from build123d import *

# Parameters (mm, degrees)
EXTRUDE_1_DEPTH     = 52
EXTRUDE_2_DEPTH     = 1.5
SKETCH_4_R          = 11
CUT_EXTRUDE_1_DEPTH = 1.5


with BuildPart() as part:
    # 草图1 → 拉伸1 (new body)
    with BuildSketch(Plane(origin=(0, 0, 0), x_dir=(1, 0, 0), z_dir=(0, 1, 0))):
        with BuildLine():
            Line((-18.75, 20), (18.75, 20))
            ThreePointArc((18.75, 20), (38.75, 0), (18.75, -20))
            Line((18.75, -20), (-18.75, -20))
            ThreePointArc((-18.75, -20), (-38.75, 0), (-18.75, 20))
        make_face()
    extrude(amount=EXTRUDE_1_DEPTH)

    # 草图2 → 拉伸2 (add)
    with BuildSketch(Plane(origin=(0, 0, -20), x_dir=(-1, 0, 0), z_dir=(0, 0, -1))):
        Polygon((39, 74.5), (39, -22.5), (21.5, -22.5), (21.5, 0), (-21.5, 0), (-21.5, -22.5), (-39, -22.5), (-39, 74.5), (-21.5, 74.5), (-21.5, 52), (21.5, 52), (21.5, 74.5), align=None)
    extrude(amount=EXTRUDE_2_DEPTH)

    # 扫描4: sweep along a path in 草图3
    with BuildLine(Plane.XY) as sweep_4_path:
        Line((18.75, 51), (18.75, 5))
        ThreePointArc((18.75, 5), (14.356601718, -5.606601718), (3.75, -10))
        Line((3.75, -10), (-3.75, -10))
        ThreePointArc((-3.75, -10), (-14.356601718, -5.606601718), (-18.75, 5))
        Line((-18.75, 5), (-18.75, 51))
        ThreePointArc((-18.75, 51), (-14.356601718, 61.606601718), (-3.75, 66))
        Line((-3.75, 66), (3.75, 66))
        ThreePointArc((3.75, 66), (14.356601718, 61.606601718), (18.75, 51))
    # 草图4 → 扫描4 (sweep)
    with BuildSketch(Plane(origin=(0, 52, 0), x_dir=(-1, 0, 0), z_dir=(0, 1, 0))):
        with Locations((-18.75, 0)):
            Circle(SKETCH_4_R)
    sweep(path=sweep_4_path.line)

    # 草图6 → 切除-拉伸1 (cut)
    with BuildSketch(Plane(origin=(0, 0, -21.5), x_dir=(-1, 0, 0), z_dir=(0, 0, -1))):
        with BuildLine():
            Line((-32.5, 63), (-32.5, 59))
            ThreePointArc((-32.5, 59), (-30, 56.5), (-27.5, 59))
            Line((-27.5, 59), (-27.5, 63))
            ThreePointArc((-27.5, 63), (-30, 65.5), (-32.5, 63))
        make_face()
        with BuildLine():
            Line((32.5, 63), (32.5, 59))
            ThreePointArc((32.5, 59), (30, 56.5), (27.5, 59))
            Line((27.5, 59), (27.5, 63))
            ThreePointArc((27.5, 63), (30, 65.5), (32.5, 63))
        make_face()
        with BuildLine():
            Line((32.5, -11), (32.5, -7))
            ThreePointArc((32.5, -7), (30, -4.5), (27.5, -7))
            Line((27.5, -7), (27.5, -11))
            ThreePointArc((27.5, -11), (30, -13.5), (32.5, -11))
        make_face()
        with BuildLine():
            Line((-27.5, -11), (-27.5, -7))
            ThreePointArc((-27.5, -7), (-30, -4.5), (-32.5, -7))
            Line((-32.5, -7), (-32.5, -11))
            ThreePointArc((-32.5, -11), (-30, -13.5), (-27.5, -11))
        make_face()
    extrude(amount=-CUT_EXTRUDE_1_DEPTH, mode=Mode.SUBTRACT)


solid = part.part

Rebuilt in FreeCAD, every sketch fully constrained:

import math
import FreeCAD as App
import Part
import Sketcher
Q = App.Units.Quantity

doc = App.newDocument("Part")
body = doc.addObject("PartDesign::Body", "Body")

# Sketch on XZ plane
sketch1 = body.newObject("Sketcher::SketchObject", "Sketch")
sketch1.AttachmentSupport = (doc.getObject("XZ_Plane"), [""])
sketch1.MapMode = "FlatFace"
sketch1.addGeometry(Part.LineSegment(App.Vector(19, -20, 0), App.Vector(-19, -20, 0)), False)
sketch1.addGeometry(Part.ArcOfCircle(Part.Circle(App.Vector(-19, 0, 0), App.Vector(0, 0, 1), 20), math.radians(90), math.radians(270)), False)
sketch1.addGeometry(Part.LineSegment(App.Vector(-19, 20, 0), App.Vector(19, 20, 0)), False)
sketch1.addGeometry(Part.ArcOfCircle(Part.Circle(App.Vector(19, 0, 0), App.Vector(0, 0, 1), 20), math.radians(-90), math.radians(90)), False)
sketch1.addConstraint(Sketcher.Constraint("Tangent", 0, 2, 1, 2))
sketch1.addConstraint(Sketcher.Constraint("Tangent", 1, 1, 2, 1))
sketch1.addConstraint(Sketcher.Constraint("Tangent", 2, 2, 3, 2))
sketch1.addConstraint(Sketcher.Constraint("Tangent", 3, 1, 0, 1))
sketch1.addConstraint(Sketcher.Constraint("Horizontal", 0))
sketch1.addConstraint(Sketcher.Constraint("Horizontal", 2))
sketch1.addConstraint(Sketcher.Constraint("Symmetric", 1, 3, 3, 3, -1, 1))
sketch1.addConstraint(Sketcher.Constraint("Radius", 1, Q("20 mm")))
sketch1.addConstraint(Sketcher.Constraint("DistanceX", 0, 2, 0, 1, Q("37.5 mm")))
pad1 = body.newObject("PartDesign::Pad", "Pad")
pad1.Profile = sketch1
pad1.Length = 52
pad1.Reversed = True

# Sketch on XY plane
sketch2 = body.newObject("Sketcher::SketchObject", "Sketch001")
sketch2.AttachmentSupport = (doc.getObject("XY_Plane"), [""])
sketch2.MapMode = "FlatFace"
sketch2.AttachmentOffset = App.Placement(App.Vector(0, 0, -20), App.Rotation())
sketch2.addGeometry(Part.LineSegment(App.Vector(-39, -22, 0), App.Vector(-39, 74, 0)), False)
sketch2.addGeometry(Part.LineSegment(App.Vector(-39, 74, 0), App.Vector(-22, 74, 0)), False)
sketch2.addGeometry(Part.LineSegment(App.Vector(-22, 74, 0), App.Vector(-22, 52, 0)), False)
sketch2.addGeometry(Part.LineSegment(App.Vector(-22, 52, 0), App.Vector(22, 52, 0)), False)
sketch2.addGeometry(Part.LineSegment(App.Vector(22, 52, 0), App.Vector(22, 74, 0)), False)
sketch2.addGeometry(Part.LineSegment(App.Vector(22, 74, 0), App.Vector(39, 74, 0)), False)
sketch2.addGeometry(Part.LineSegment(App.Vector(39, 74, 0), App.Vector(39, -22, 0)), False)
sketch2.addGeometry(Part.LineSegment(App.Vector(39, -22, 0), App.Vector(22, -22, 0)), False)
sketch2.addGeometry(Part.LineSegment(App.Vector(22, -22, 0), App.Vector(22, 0, 0)), False)
sketch2.addGeometry(Part.LineSegment(App.Vector(22, 0, 0), App.Vector(-22, 0, 0)), False)
sketch2.addGeometry(Part.LineSegment(App.Vector(-22, 0, 0), App.Vector(-22, -22, 0)), False)
sketch2.addGeometry(Part.LineSegment(App.Vector(-22, -22, 0), App.Vector(-39, -22, 0)), False)
sketch2.addConstraint(Sketcher.Constraint("Coincident", 0, 2, 1, 1))
sketch2.addConstraint(Sketcher.Constraint("Coincident", 1, 2, 2, 1))
sketch2.addConstraint(Sketcher.Constraint("Coincident", 2, 2, 3, 1))
sketch2.addConstraint(Sketcher.Constraint("Coincident", 3, 2, 4, 1))
sketch2.addConstraint(Sketcher.Constraint("Coincident", 4, 2, 5, 1))
sketch2.addConstraint(Sketcher.Constraint("Coincident", 5, 2, 6, 1))
sketch2.addConstraint(Sketcher.Constraint("Coincident", 6, 2, 7, 1))
sketch2.addConstraint(Sketcher.Constraint("Coincident", 7, 2, 8, 1))
sketch2.addConstraint(Sketcher.Constraint("Coincident", 8, 2, 9, 1))
sketch2.addConstraint(Sketcher.Constraint("Coincident", 9, 2, 10, 1))
sketch2.addConstraint(Sketcher.Constraint("Coincident", 10, 2, 11, 1))
sketch2.addConstraint(Sketcher.Constraint("Coincident", 11, 2, 0, 1))
sketch2.addConstraint(Sketcher.Constraint("Vertical", 0))
sketch2.addConstraint(Sketcher.Constraint("Horizontal", 1))
sketch2.addConstraint(Sketcher.Constraint("Vertical", 2))
sketch2.addConstraint(Sketcher.Constraint("Horizontal", 3))
sketch2.addConstraint(Sketcher.Constraint("Vertical", 4))
sketch2.addConstraint(Sketcher.Constraint("Horizontal", 5))
sketch2.addConstraint(Sketcher.Constraint("Vertical", 6))
sketch2.addConstraint(Sketcher.Constraint("Horizontal", 7))
sketch2.addConstraint(Sketcher.Constraint("Vertical", 8))
sketch2.addConstraint(Sketcher.Constraint("Horizontal", 9))
sketch2.addConstraint(Sketcher.Constraint("Vertical", 10))
sketch2.addConstraint(Sketcher.Constraint("Horizontal", 11))
sketch2.addConstraint(Sketcher.Constraint("Symmetric", 8, 2, 9, 2, -1, 1))
sketch2.addConstraint(Sketcher.Constraint("Symmetric", 1, 2, 4, 2, -2))
sketch2.addConstraint(Sketcher.Constraint("Symmetric", 6, 2, 11, 2, -2))
sketch2.addConstraint(Sketcher.Constraint("Vertical", 4, 2, 7, 2))
sketch2.addConstraint(Sketcher.Constraint("Equal", 4, 8))
sketch2.addConstraint(Sketcher.Constraint("DistanceX", 3, 1, 3, 2, Q("43 mm")))
sketch2.addConstraint(Sketcher.Constraint("DistanceY", 0, 1, 0, 2, Q("97 mm")))
sketch2.addConstraint(Sketcher.Constraint("DistanceX", 1, 1, 1, 2, Q("17.5 mm")))
sketch2.addConstraint(Sketcher.Constraint("DistanceY", 2, 2, 2, 1, Q("22.5 mm")))
pad2 = body.newObject("PartDesign::Pad", "Pad001")
pad2.Profile = sketch2
pad2.Length = 1.5
pad2.Reversed = True

# Sketch on XZ plane
sketch3 = body.newObject("Sketcher::SketchObject", "Sketch002")
sketch3.AttachmentSupport = (doc.getObject("XZ_Plane"), [""])
sketch3.MapMode = "FlatFace"
sketch3.AttachmentOffset = App.Placement(App.Vector(0, 0, -52), App.Rotation())
sketch3.addGeometry(Part.Circle(App.Vector(19, 0, 0), App.Vector(0, 0, 1), 11), False)
sketch3.addConstraint(Sketcher.Constraint("PointOnObject", 0, 3, -1))
sketch3.addConstraint(Sketcher.Constraint("Diameter", 0, Q("22 mm")))
sketch3.addConstraint(Sketcher.Constraint("DistanceX", -1, 1, 0, 3, Q("18.75 mm")))

# Sketch on XY plane
sketch4 = body.newObject("Sketcher::SketchObject", "Sketch003")
sketch4.AttachmentSupport = (doc.getObject("XY_Plane"), [""])
sketch4.MapMode = "FlatFace"
sketch4.addGeometry(Part.LineSegment(App.Vector(19, 51, 0), App.Vector(19, 5, 0)), False)
sketch4.addGeometry(Part.ArcOfCircle(Part.Circle(App.Vector(4, 5, 0), App.Vector(0, 0, 1), 15), math.radians(-90), math.radians(0)), False)
sketch4.addGeometry(Part.LineSegment(App.Vector(4, -10, 0), App.Vector(-4, -10, 0)), False)
sketch4.addGeometry(Part.ArcOfCircle(Part.Circle(App.Vector(-4, 5, 0), App.Vector(0, 0, 1), 15), math.radians(180), math.radians(270)), False)
sketch4.addGeometry(Part.LineSegment(App.Vector(-19, 5, 0), App.Vector(-19, 51, 0)), False)
sketch4.addGeometry(Part.ArcOfCircle(Part.Circle(App.Vector(-4, 51, 0), App.Vector(0, 0, 1), 15), math.radians(90), math.radians(180)), False)
sketch4.addGeometry(Part.LineSegment(App.Vector(-4, 66, 0), App.Vector(4, 66, 0)), False)
sketch4.addGeometry(Part.ArcOfCircle(Part.Circle(App.Vector(4, 51, 0), App.Vector(0, 0, 1), 15), math.radians(0), math.radians(90)), False)
sketch4.addConstraint(Sketcher.Constraint("Tangent", 0, 2, 1, 2))
sketch4.addConstraint(Sketcher.Constraint("Tangent", 1, 1, 2, 1))
sketch4.addConstraint(Sketcher.Constraint("Tangent", 2, 2, 3, 2))
sketch4.addConstraint(Sketcher.Constraint("Tangent", 3, 1, 4, 1))
sketch4.addConstraint(Sketcher.Constraint("Tangent", 4, 2, 5, 2))
sketch4.addConstraint(Sketcher.Constraint("Tangent", 5, 1, 6, 1))
sketch4.addConstraint(Sketcher.Constraint("Tangent", 6, 2, 7, 2))
sketch4.addConstraint(Sketcher.Constraint("Tangent", 7, 1, 0, 1))
sketch4.addConstraint(Sketcher.Constraint("Vertical", 0))
sketch4.addConstraint(Sketcher.Constraint("Horizontal", 2))
sketch4.addConstraint(Sketcher.Constraint("Vertical", 4))
sketch4.addConstraint(Sketcher.Constraint("Horizontal", 6))
sketch4.addConstraint(Sketcher.Constraint("Equal", 1, 3))
sketch4.addConstraint(Sketcher.Constraint("Equal", 3, 5))
sketch4.addConstraint(Sketcher.Constraint("Equal", 5, 7))
sketch4.addConstraint(Sketcher.Constraint("Radius", 1, Q("15 mm")))
sketch4.addConstraint(Sketcher.Constraint("DistanceY", 0, 2, 0, 1, Q("46 mm")))
sketch4.addConstraint(Sketcher.Constraint("DistanceX", 2, 2, 2, 1, Q("7.5 mm")))
sketch4.addConstraint(Sketcher.Constraint("DistanceY", -1, 1, 1, 3, Q("5 mm")))
sketch4.addConstraint(Sketcher.Constraint("DistanceX", -1, 1, 1, 3, Q("3.75 mm")))
doc.recompute()

additivepipe = body.newObject("PartDesign::AdditivePipe", "AdditivePipe")
additivepipe.Profile = sketch3
additivepipe.Spine = (sketch4, ["Edge1", "Edge2", "Edge3", "Edge4", "Edge5", "Edge6", "Edge7", "Edge8"])

# Sketch on XY plane
sketch5 = body.newObject("Sketcher::SketchObject", "Sketch004")
sketch5.AttachmentSupport = (doc.getObject("XY_Plane"), [""])
sketch5.MapMode = "FlatFace"
sketch5.AttachmentOffset = App.Placement(App.Vector(0, 0, -21.5), App.Rotation())
sketch5.addGeometry(Part.LineSegment(App.Vector(32.5, 63, 0), App.Vector(32.5, 59, 0)), False)
sketch5.addGeometry(Part.ArcOfCircle(Part.Circle(App.Vector(30, 59, 0), App.Vector(0, 0, 1), 2.5), math.radians(180), math.radians(360)), False)
sketch5.addGeometry(Part.LineSegment(App.Vector(27.5, 59, 0), App.Vector(27.5, 63, 0)), False)
sketch5.addGeometry(Part.ArcOfCircle(Part.Circle(App.Vector(30, 63, 0), App.Vector(0, 0, 1), 2.5), math.radians(0), math.radians(180)), False)
sketch5.addGeometry(Part.LineSegment(App.Vector(-32.5, 59, 0), App.Vector(-32.5, 63, 0)), False)
sketch5.addGeometry(Part.ArcOfCircle(Part.Circle(App.Vector(-30, 63, 0), App.Vector(0, 0, 1), 2.5), math.radians(0), math.radians(180)), False)
sketch5.addGeometry(Part.LineSegment(App.Vector(-27.5, 63, 0), App.Vector(-27.5, 59, 0)), False)
sketch5.addGeometry(Part.ArcOfCircle(Part.Circle(App.Vector(-30, 59, 0), App.Vector(0, 0, 1), 2.5), math.radians(180), math.radians(360)), False)
sketch5.addGeometry(Part.LineSegment(App.Vector(-32.5, -11, 0), App.Vector(-32.5, -7, 0)), False)
sketch5.addGeometry(Part.ArcOfCircle(Part.Circle(App.Vector(-30, -7, 0), App.Vector(0, 0, 1), 2.5), math.radians(0), math.radians(180)), False)
sketch5.addGeometry(Part.LineSegment(App.Vector(-27.5, -7, 0), App.Vector(-27.5, -11, 0)), False)
sketch5.addGeometry(Part.ArcOfCircle(Part.Circle(App.Vector(-30, -11, 0), App.Vector(0, 0, 1), 2.5), math.radians(180), math.radians(360)), False)
sketch5.addGeometry(Part.LineSegment(App.Vector(27.5, -11, 0), App.Vector(27.5, -7, 0)), False)
sketch5.addGeometry(Part.ArcOfCircle(Part.Circle(App.Vector(30, -7, 0), App.Vector(0, 0, 1), 2.5), math.radians(0), math.radians(180)), False)
sketch5.addGeometry(Part.LineSegment(App.Vector(32.5, -7, 0), App.Vector(32.5, -11, 0)), False)
sketch5.addGeometry(Part.ArcOfCircle(Part.Circle(App.Vector(30, -11, 0), App.Vector(0, 0, 1), 2.5), math.radians(180), math.radians(360)), False)
sketch5.addConstraint(Sketcher.Constraint("Tangent", 0, 2, 1, 2))
sketch5.addConstraint(Sketcher.Constraint("Tangent", 1, 1, 2, 1))
sketch5.addConstraint(Sketcher.Constraint("Tangent", 2, 2, 3, 2))
sketch5.addConstraint(Sketcher.Constraint("Tangent", 3, 1, 0, 1))
sketch5.addConstraint(Sketcher.Constraint("Tangent", 4, 2, 5, 2))
sketch5.addConstraint(Sketcher.Constraint("Tangent", 5, 1, 6, 1))
sketch5.addConstraint(Sketcher.Constraint("Tangent", 6, 2, 7, 2))
sketch5.addConstraint(Sketcher.Constraint("Tangent", 7, 1, 4, 1))
sketch5.addConstraint(Sketcher.Constraint("Tangent", 8, 2, 9, 2))
sketch5.addConstraint(Sketcher.Constraint("Tangent", 9, 1, 10, 1))
sketch5.addConstraint(Sketcher.Constraint("Tangent", 10, 2, 11, 2))
sketch5.addConstraint(Sketcher.Constraint("Tangent", 11, 1, 8, 1))
sketch5.addConstraint(Sketcher.Constraint("Tangent", 12, 2, 13, 2))
sketch5.addConstraint(Sketcher.Constraint("Tangent", 13, 1, 14, 1))
sketch5.addConstraint(Sketcher.Constraint("Tangent", 14, 2, 15, 2))
sketch5.addConstraint(Sketcher.Constraint("Tangent", 15, 1, 12, 1))
sketch5.addConstraint(Sketcher.Constraint("Vertical", 0))
sketch5.addConstraint(Sketcher.Constraint("Vertical", 2))
sketch5.addConstraint(Sketcher.Constraint("Vertical", 4))
sketch5.addConstraint(Sketcher.Constraint("Vertical", 6))
sketch5.addConstraint(Sketcher.Constraint("Vertical", 8))
sketch5.addConstraint(Sketcher.Constraint("Vertical", 10))
sketch5.addConstraint(Sketcher.Constraint("Vertical", 12))
sketch5.addConstraint(Sketcher.Constraint("Vertical", 14))
sketch5.addConstraint(Sketcher.Constraint("Equal", 3, 5))
sketch5.addConstraint(Sketcher.Constraint("Equal", 7, 9))
sketch5.addConstraint(Sketcher.Constraint("Equal", 11, 13))
sketch5.addConstraint(Sketcher.Constraint("Symmetric", 3, 3, 5, 3, -2))
sketch5.addConstraint(Sketcher.Constraint("Symmetric", 9, 3, 13, 3, -2))
sketch5.addConstraint(Sketcher.Constraint("Horizontal", 1, 3, 7, 3))
sketch5.addConstraint(Sketcher.Constraint("Horizontal", 11, 3, 15, 3))
sketch5.addConstraint(Sketcher.Constraint("Vertical", 7, 3, 9, 3))
sketch5.addConstraint(Sketcher.Constraint("Equal", 6, 8))
sketch5.addConstraint(Sketcher.Constraint("Radius", 1, Q("2.5 mm")))
sketch5.addConstraint(Sketcher.Constraint("DistanceY", 0, 2, 0, 1, Q("4 mm")))
sketch5.addConstraint(Sketcher.Constraint("DistanceX", -1, 1, 1, 3, Q("30 mm")))
sketch5.addConstraint(Sketcher.Constraint("DistanceY", -1, 1, 1, 3, Q("59 mm")))
sketch5.addConstraint(Sketcher.Constraint("DistanceY", 9, 3, -1, 1, Q("7 mm")))
pocket1 = body.newObject("PartDesign::Pocket", "Pocket")
pocket1.Profile = sketch5
pocket1.Length = 1.5
pocket1.Reversed = True

doc.recompute()
